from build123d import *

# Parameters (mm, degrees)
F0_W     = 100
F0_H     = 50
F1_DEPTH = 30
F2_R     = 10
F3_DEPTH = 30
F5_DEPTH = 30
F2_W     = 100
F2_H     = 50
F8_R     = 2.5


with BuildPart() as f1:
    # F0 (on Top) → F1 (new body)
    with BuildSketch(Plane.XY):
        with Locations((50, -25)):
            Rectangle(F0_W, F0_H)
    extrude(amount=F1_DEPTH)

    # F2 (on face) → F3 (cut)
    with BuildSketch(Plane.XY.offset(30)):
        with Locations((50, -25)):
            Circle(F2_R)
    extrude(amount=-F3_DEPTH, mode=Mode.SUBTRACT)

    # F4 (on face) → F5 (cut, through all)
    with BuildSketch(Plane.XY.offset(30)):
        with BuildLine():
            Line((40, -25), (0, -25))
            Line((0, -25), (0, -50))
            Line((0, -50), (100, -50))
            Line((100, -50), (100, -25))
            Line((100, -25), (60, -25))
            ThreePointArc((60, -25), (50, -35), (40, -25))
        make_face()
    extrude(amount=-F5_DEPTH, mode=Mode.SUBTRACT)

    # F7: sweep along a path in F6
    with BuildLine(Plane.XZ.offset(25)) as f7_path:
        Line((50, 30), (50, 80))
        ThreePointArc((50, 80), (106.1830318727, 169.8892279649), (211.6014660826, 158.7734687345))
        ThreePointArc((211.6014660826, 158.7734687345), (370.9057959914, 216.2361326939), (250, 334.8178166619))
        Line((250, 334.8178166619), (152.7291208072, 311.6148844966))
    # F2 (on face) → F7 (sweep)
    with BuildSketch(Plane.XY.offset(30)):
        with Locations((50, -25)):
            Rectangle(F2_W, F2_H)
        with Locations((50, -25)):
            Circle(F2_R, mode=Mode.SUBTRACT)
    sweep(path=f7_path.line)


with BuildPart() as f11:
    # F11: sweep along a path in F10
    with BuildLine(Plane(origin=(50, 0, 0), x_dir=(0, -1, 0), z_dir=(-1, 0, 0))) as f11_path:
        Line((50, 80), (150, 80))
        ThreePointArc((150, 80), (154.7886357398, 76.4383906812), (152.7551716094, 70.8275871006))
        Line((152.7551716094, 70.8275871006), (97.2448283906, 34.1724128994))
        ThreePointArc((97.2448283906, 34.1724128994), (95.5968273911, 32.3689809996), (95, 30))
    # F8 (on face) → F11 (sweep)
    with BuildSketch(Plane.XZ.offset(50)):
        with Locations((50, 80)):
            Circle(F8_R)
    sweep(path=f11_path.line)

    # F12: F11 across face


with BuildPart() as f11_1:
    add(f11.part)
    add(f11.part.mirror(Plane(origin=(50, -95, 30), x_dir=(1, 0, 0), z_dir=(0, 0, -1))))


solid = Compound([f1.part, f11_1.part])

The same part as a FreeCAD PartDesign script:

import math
import FreeCAD as App
import Part
import Sketcher

doc = App.newDocument("Part")
body = doc.addObject("PartDesign::Body", "Body")

sketch1 = body.newObject("Sketcher::SketchObject", "Sketch")
sketch1.AttachmentSupport = (doc.getObject("XY_Plane"), [""])
sketch1.MapMode = "FlatFace"
sketch1.addGeometry([
    Part.LineSegment(App.Vector(0, 0, 0), App.Vector(0, -50, 0)),
    Part.LineSegment(App.Vector(0, -50, 0), App.Vector(100, -50, 0)),
    Part.LineSegment(App.Vector(100, -50, 0), App.Vector(100, 0, 0)),
    Part.LineSegment(App.Vector(100, 0, 0), App.Vector(0, 0, 0)),
], False)
sketch1.addConstraint([
    Sketcher.Constraint("Coincident", 0, 2, 1, 1),
    Sketcher.Constraint("Coincident", 1, 2, 2, 1),
    Sketcher.Constraint("Coincident", 2, 2, 3, 1),
    Sketcher.Constraint("Coincident", 3, 2, 0, 1),
    Sketcher.Constraint("Vertical", 0),
    Sketcher.Constraint("Horizontal", 1),
    Sketcher.Constraint("Vertical", 2),
    Sketcher.Constraint("Horizontal", 3),
    Sketcher.Constraint("Coincident", 3, 2, -1, 1),
    Sketcher.Constraint("DistanceX", 1, 1, 1, 2, 100.0),
    Sketcher.Constraint("DistanceY", 0, 2, 0, 1, 50.0),
])
pad1 = body.newObject("PartDesign::Pad", "Pad")
pad1.Profile = sketch1
pad1.Length = 30

sketch2 = body.newObject("Sketcher::SketchObject", "Sketch001")
sketch2.AttachmentSupport = (doc.getObject("XY_Plane"), [""])
sketch2.MapMode = "FlatFace"
sketch2.AttachmentOffset = App.Placement(App.Vector(0, 0, 30), App.Rotation())
sketch2.addGeometry(Part.Circle(App.Vector(50, -25, 0), App.Vector(0, 0, 1), 10), False)
sketch2.addConstraint([
    Sketcher.Constraint("Diameter", 0, 20.0),
    Sketcher.Constraint("DistanceX", -1, 1, 0, 3, 50.0),
    Sketcher.Constraint("DistanceY", 0, 3, -1, 1, 25.0),
])
pocket1 = body.newObject("PartDesign::Pocket", "Pocket")
pocket1.Profile = sketch2
pocket1.Length = 30

sketch3 = body.newObject("Sketcher::SketchObject", "Sketch002")
sketch3.AttachmentSupport = (doc.getObject("XY_Plane"), [""])
sketch3.MapMode = "FlatFace"
sketch3.AttachmentOffset = App.Placement(App.Vector(0, 0, 30), App.Rotation())
sketch3.addGeometry([
    Part.LineSegment(App.Vector(40, -25, 0), App.Vector(0, -25, 0)),
    Part.LineSegment(App.Vector(0, -25, 0), App.Vector(0, -50, 0)),
    Part.LineSegment(App.Vector(0, -50, 0), App.Vector(100, -50, 0)),
    Part.LineSegment(App.Vector(100, -50, 0), App.Vector(100, -25, 0)),
    Part.LineSegment(App.Vector(100, -25, 0), App.Vector(60, -25, 0)),
    Part.ArcOfCircle(Part.Circle(App.Vector(50, -25, 0), App.Vector(0, 0, 1), 10), math.radians(180), math.radians(360)),
], False)
sketch3.addConstraint([
    Sketcher.Constraint("Coincident", 0, 2, 1, 1),
    Sketcher.Constraint("Coincident", 1, 2, 2, 1),
    Sketcher.Constraint("Coincident", 2, 2, 3, 1),
    Sketcher.Constraint("Coincident", 3, 2, 4, 1),
    Sketcher.Constraint("Coincident", 4, 2, 5, 2),
    Sketcher.Constraint("Coincident", 5, 1, 0, 1),
    Sketcher.Constraint("Horizontal", 0),
    Sketcher.Constraint("Vertical", 1),
    Sketcher.Constraint("Horizontal", 2),
    Sketcher.Constraint("Vertical", 3),
    Sketcher.Constraint("Horizontal", 4),
    Sketcher.Constraint("PointOnObject", 0, 2, -2),
    Sketcher.Constraint("Horizontal", 5, 3, 0, 2),
    Sketcher.Constraint("Horizontal", 0, 2, 3, 2),
    Sketcher.Constraint("Equal", 0, 4),
    Sketcher.Constraint("Radius", 5, 10.0),
    Sketcher.Constraint("DistanceX", 0, 2, 0, 1, 40.0),
    Sketcher.Constraint("DistanceY", 1, 2, 1, 1, 25.0),
    Sketcher.Constraint("DistanceY", 5, 3, -1, 1, 25.0),
])
pocket2 = body.newObject("PartDesign::Pocket", "Pocket001")
pocket2.Profile = sketch3
pocket2.Type = "ThroughAll"

sketch4 = body.newObject("Sketcher::SketchObject", "Sketch003")
sketch4.AttachmentSupport = (doc.getObject("XY_Plane"), [""])
sketch4.MapMode = "FlatFace"
sketch4.AttachmentOffset = App.Placement(App.Vector(0, 0, 30), App.Rotation())
sketch4.addGeometry([
    Part.LineSegment(App.Vector(0, 0, 0), App.Vector(0, -50, 0)),
    Part.LineSegment(App.Vector(0, -50, 0), App.Vector(100, -50, 0)),
    Part.LineSegment(App.Vector(100, -50, 0), App.Vector(100, 0, 0)),
    Part.LineSegment(App.Vector(100, 0, 0), App.Vector(0, 0, 0)),
    Part.Circle(App.Vector(50, -25, 0), App.Vector(0, 0, 1), 10),
], False)
sketch4.addConstraint([
    Sketcher.Constraint("Coincident", 0, 2, 1, 1),
    Sketcher.Constraint("Coincident", 1, 2, 2, 1),
    Sketcher.Constraint("Coincident", 2, 2, 3, 1),
    Sketcher.Constraint("Coincident", 3, 2, 0, 1),
    Sketcher.Constraint("Vertical", 0),
    Sketcher.Constraint("Horizontal", 1),
    Sketcher.Constraint("Vertical", 2),
    Sketcher.Constraint("Horizontal", 3),
    Sketcher.Constraint("Coincident", 3, 2, -1, 1),
    Sketcher.Constraint("Diameter", 4, 20.0),
    Sketcher.Constraint("DistanceX", 1, 1, 1, 2, 100.0),
    Sketcher.Constraint("DistanceY", 0, 2, 0, 1, 50.0),
    Sketcher.Constraint("DistanceX", -1, 1, 4, 3, 50.0),
    Sketcher.Constraint("DistanceY", 4, 3, -1, 1, 25.0),
])

sketch5 = body.newObject("Sketcher::SketchObject", "Sketch004")
sketch5.AttachmentSupport = (doc.getObject("XZ_Plane"), [""])
sketch5.MapMode = "FlatFace"
sketch5.AttachmentOffset = App.Placement(App.Vector(0, 0, 25), App.Rotation())
sketch5.addGeometry([
    Part.LineSegment(App.Vector(50, 30, 0), App.Vector(50, 80, 0)),
    Part.ArcOfCircle(Part.Circle(App.Vector(150, 80, 0), App.Vector(0, 0, 1), 100), math.radians(52), math.radians(180)),
    Part.ArcOfCircle(Part.Circle(App.Vector(273, 238, 0), App.Vector(0, 0, 1), 100), math.radians(-128), math.radians(103)),
    Part.LineSegment(App.Vector(250, 335, 0), App.Vector(153, 312, 0)),
], False)
sketch5.addConstraint([
    Sketcher.Constraint("Tangent", 0, 2, 1, 2),
    Sketcher.Constraint("Tangent", 1, 1, 2, 1),
    Sketcher.Constraint("Tangent", 2, 2, 3, 1),
    Sketcher.Constraint("Vertical", 0),
    Sketcher.Constraint("Equal", 1, 2),
    Sketcher.Constraint("Radius", 1, 100.0),
    Sketcher.Constraint("DistanceY", 0, 1, 0, 2, 50.0),
    Sketcher.Constraint("Distance", 3, 100.0),
    Sketcher.Constraint("DistanceX", -1, 1, 1, 3, 150.0),
    Sketcher.Constraint("DistanceY", -1, 1, 1, 3, 80.0),
    Sketcher.Constraint("DistanceX", -1, 1, 2, 2, 250.0),
    Sketcher.Constraint("DistanceY", -1, 1, 1, 1, 158.773469),
])
doc.recompute()

additivepipe = body.newObject("PartDesign::AdditivePipe", "AdditivePipe")
additivepipe.Profile = sketch4
additivepipe.Spine = (sketch5, ["Edge1", "Edge2", "Edge3", "Edge4"])
body2 = doc.addObject("PartDesign::Body", "Body001")

sketch6 = body2.newObject("Sketcher::SketchObject", "Sketch005")
sketch6.AttachmentSupport = (doc.getObject("XZ_Plane001"), [""])
sketch6.MapMode = "FlatFace"
sketch6.AttachmentOffset = App.Placement(App.Vector(0, 0, 50), App.Rotation())
sketch6.addGeometry(Part.Circle(App.Vector(50, 80, 0), App.Vector(0, 0, 1), 2.5), False)
sketch6.addConstraint([
    Sketcher.Constraint("Diameter", 0, 5.0),
    Sketcher.Constraint("DistanceX", -1, 1, 0, 3, 50.0),
    Sketcher.Constraint("DistanceY", -1, 1, 0, 3, 80.0),
])

sketch7 = body2.newObject("Sketcher::SketchObject", "Sketch006")
sketch7.AttachmentSupport = (doc.getObject("YZ_Plane001"), [""])
sketch7.MapMode = "FlatFace"
sketch7.AttachmentOffset = App.Placement(App.Vector(0, 0, 50), App.Rotation())
sketch7.addGeometry([
    Part.LineSegment(App.Vector(-50, 80, 0), App.Vector(-150, 80, 0)),
    Part.ArcOfCircle(Part.Circle(App.Vector(-150, 75, 0), App.Vector(0, 0, 1), 5), math.radians(90), math.radians(237)),
    Part.LineSegment(App.Vector(-152.8, 70.8, 0), App.Vector(-97.2, 34.2, 0)),
    Part.ArcOfCircle(Part.Circle(App.Vector(-100, 30, 0), App.Vector(0, 0, 1), 5), math.radians(0), math.radians(57)),
], False)
sketch7.addConstraint([
    Sketcher.Constraint("Tangent", 0, 2, 1, 1),
    Sketcher.Constraint("Tangent", 1, 2, 2, 1),
    Sketcher.Constraint("Tangent", 2, 2, 3, 2),
    Sketcher.Constraint("Horizontal", 0),
    Sketcher.Constraint("Equal", 1, 3),
    Sketcher.Constraint("Radius", 1, 5.0),
    Sketcher.Constraint("DistanceX", 0, 2, 0, 1, 100.0),
    Sketcher.Constraint("DistanceX", 1, 3, -1, 1, 150.0),
    Sketcher.Constraint("DistanceY", -1, 1, 1, 3, 75.0),
    Sketcher.Constraint("DistanceX", 3, 3, -1, 1, 100.0),
    Sketcher.Constraint("DistanceY", -1, 1, 3, 3, 30.0),
    Sketcher.Constraint("DistanceY", -1, 1, 3, 1, 30.0),
])
doc.recompute()

additivepipe2 = body2.newObject("PartDesign::AdditivePipe", "AdditivePipe001")
additivepipe2.Profile = sketch6
additivepipe2.Spine = (sketch7, ["Edge1", "Edge2", "Edge3", "Edge4"])
body3 = doc.addObject("PartDesign::Body", "Body002")
doc.recompute()

body3.BaseFeature = body2
doc.recompute()

mirroring = doc.addObject("Part::Mirroring", "Mirroring")
mirroring.Source = body2
mirroring.Base = App.Vector(50, -95, 30)
mirroring.Normal = App.Vector(0, 0, -1)
body4 = doc.addObject("PartDesign::Body", "Body003")
body4.BaseFeature = mirroring
boolean = body3.newObject("PartDesign::Boolean", "Boolean")
boolean.Type = "Fuse"
boolean.addObjects([body4])
doc.recompute()
mirroring.Visibility = False

doc.recompute()
